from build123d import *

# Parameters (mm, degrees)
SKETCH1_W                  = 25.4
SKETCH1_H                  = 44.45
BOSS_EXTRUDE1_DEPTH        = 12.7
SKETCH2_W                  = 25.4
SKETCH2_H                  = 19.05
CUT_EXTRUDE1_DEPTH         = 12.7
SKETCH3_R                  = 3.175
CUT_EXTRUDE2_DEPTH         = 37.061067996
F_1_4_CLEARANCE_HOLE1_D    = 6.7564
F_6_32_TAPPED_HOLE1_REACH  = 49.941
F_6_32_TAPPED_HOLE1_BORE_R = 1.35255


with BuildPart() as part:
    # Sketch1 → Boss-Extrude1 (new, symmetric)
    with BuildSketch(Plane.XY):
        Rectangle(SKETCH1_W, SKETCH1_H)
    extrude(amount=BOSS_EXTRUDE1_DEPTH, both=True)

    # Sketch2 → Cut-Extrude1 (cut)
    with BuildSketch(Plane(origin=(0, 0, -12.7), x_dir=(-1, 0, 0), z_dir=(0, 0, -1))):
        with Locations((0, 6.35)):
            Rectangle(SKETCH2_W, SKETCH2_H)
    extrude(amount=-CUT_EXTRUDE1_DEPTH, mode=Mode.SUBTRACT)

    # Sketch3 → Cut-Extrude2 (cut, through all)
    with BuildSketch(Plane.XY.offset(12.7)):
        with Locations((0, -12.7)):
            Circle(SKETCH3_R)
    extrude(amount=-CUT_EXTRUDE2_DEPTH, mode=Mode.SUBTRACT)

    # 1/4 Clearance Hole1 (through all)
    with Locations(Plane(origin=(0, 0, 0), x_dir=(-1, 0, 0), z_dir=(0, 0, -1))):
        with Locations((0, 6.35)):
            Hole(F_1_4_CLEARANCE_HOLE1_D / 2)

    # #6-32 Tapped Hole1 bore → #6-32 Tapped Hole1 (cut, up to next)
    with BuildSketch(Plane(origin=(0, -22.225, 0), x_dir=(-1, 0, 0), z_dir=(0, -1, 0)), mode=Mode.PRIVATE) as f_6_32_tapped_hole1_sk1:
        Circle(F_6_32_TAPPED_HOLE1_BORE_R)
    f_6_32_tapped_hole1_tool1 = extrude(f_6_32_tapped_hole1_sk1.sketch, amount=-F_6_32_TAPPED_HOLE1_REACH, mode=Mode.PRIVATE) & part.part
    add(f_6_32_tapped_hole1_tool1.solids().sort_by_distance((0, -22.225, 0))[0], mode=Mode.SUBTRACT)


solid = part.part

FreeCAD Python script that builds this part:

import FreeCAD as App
import Part
import Sketcher
Q = App.Units.Quantity


def add_polygon(sketch, points):
    """Adds a closed chain of lines whose ends are joined by coincident constraints."""
    first, n = sketch.GeometryCount, len(points)
    for a, b in zip(points, points[1:] + points[:1]):
        sketch.addGeometry(Part.LineSegment(App.Vector(*a, 0), App.Vector(*b, 0)), False)
    for i in range(n):
        sketch.addConstraint(Sketcher.Constraint("Coincident", first + i, 2, first + (i + 1) % n, 1))

doc = App.newDocument("Part")
params = doc.addObject("Spreadsheet::Sheet", "Params")
for row, (alias, value) in enumerate([
    ("sketch1_width", "1 in"),
    ("sketch1_height", "1.75 in"),
    ("pad1_length", "1 in"),
    ("sketch2_width", "1 in"),
    ("sketch2_height", "0.75 in"),
    ("pocket1_length", "0.5 in"),
    ("sketch3_diameter", "0.25 in"),
    ("sketch4_diameter", "0.266 in"),
    ("hole_diameter", "0.266 in"),
], start=1):
    params.set(f"A{row}", alias)
    params.set(f"B{row}", "=" + value)
    params.setAlias(f"B{row}", alias)

body = doc.addObject("PartDesign::Body", "Body")

# Sketch on XY plane
sketch1 = doc.addObject("Sketcher::SketchObject", "Sketch")
body.addObject(sketch1)
sketch1.AttachmentSupport = (doc.XY_Plane, [""])
sketch1.MapMode = "FlatFace"
add_polygon(sketch1, [(-12.7, 22.225), (-12.7, -22.225), (12.7, -22.225), (12.7, 22.225)])  # lines 0-3
sketch1.addConstraint([
    Sketcher.Constraint("Vertical", 0),
    Sketcher.Constraint("Horizontal", 1),
    Sketcher.Constraint("Vertical", 2),
    Sketcher.Constraint("Horizontal", 3),
    Sketcher.Constraint("Symmetric", 0, 2, 2, 2, -1, 1),
    Sketcher.Constraint("DistanceX", 1, 1, 1, 2, Q("1 in")),
    Sketcher.Constraint("DistanceY", 0, 2, 0, 1, Q("1.75 in")),
])
sketch1.setExpression("Constraints[9]", "Params.sketch1_width")
sketch1.setExpression("Constraints[10]", "Params.sketch1_height")
pad1 = doc.addObject("PartDesign::Pad", "Pad")
body.addObject(pad1)
pad1.Profile = sketch1
pad1.setExpression("Length", "Params.pad1_length")
pad1.Midplane = True

# Sketch on XY plane
sketch2 = doc.addObject("Sketcher::SketchObject", "Sketch001")
body.addObject(sketch2)
sketch2.AttachmentSupport = (doc.XY_Plane, [""])
sketch2.MapMode = "FlatFace"
sketch2.AttachmentOffset = App.Placement(App.Vector(0, 0, -0.5 * 25.4), App.Rotation())
add_polygon(sketch2, [(12.7, 15.875), (12.7, -3.175), (-12.7, -3.175), (-12.7, 15.875)])  # lines 0-3
sketch2.addConstraint([
    Sketcher.Constraint("Vertical", 0),
    Sketcher.Constraint("Horizontal", 1),
    Sketcher.Constraint("Vertical", 2),
    Sketcher.Constraint("Horizontal", 3),
    Sketcher.Constraint("DistanceX", 1, 2, 1, 1, Q("1 in")),
    Sketcher.Constraint("DistanceY", 0, 2, 0, 1, Q("0.75 in")),
    Sketcher.Constraint("DistanceX", -1, 1, 0, 2, Q("0.5 in")),
    Sketcher.Constraint("DistanceY", 0, 2, -1, 1, Q("0.125 in")),
])
sketch2.setExpression("Constraints[8]", "Params.sketch2_width")
sketch2.setExpression("Constraints[9]", "Params.sketch2_height")
pocket1 = doc.addObject("PartDesign::Pocket", "Pocket")
body.addObject(pocket1)
pocket1.Profile = sketch2
pocket1.setExpression("Length", "Params.pocket1_length")
pocket1.Reversed = True

# Sketch on XY plane
sketch3 = doc.addObject("Sketcher::SketchObject", "Sketch002")
body.addObject(sketch3)
sketch3.AttachmentSupport = (doc.XY_Plane, [""])
sketch3.MapMode = "FlatFace"
sketch3.AttachmentOffset = App.Placement(App.Vector(0, 0, 0.5 * 25.4), App.Rotation())
sketch3.addGeometry(Part.Circle(App.Vector(0, -12.7, 0), App.Vector(0, 0, 1), 3.175), False)
sketch3.addConstraint([
    Sketcher.Constraint("PointOnObject", 0, 3, -2),
    Sketcher.Constraint("Diameter", 0, Q("0.25 in")),
    Sketcher.Constraint("DistanceY", 0, 3, -1, 1, Q("0.5 in")),
])
sketch3.setExpression("Constraints[1]", "Params.sketch3_diameter")
pocket2 = doc.addObject("PartDesign::Pocket", "Pocket001")
body.addObject(pocket2)
pocket2.Profile = sketch3
pocket2.Type = "ThroughAll"

# Sketch on XY plane
sketch4 = doc.addObject("Sketcher::SketchObject", "Sketch003")
body.addObject(sketch4)
sketch4.AttachmentSupport = (doc.XY_Plane, [""])
sketch4.MapMode = "FlatFace"
sketch4.addGeometry(Part.Circle(App.Vector(0, 6.35, 0), App.Vector(0, 0, 1), 3.3782), False)
sketch4.addConstraint([
    Sketcher.Constraint("PointOnObject", 0, 3, -2),
    Sketcher.Constraint("Diameter", 0, Q("0.266 in")),
    Sketcher.Constraint("DistanceY", -1, 1, 0, 3, Q("0.25 in")),
])
sketch4.setExpression("Constraints[1]", "Params.sketch4_diameter")
doc.recompute()
hole = doc.addObject("PartDesign::Hole", "Hole")
body.addObject(hole)
hole.Profile = sketch4
hole.ThreadType = "None"
hole.setExpression("Diameter", "Params.hole_diameter")
hole.DepthType = "ThroughAll"
hole.Reversed = True

# Sketch on XZ plane
sketch5 = doc.addObject("Sketcher::SketchObject", "Sketch004")
body.addObject(sketch5)
sketch5.AttachmentSupport = (doc.XZ_Plane, [""])
sketch5.MapMode = "FlatFace"
sketch5.AttachmentOffset = App.Placement(App.Vector(0, 0, 0.875 * 25.4), App.Rotation())
sketch5.addGeometry(Part.Circle(App.Vector(0, 0, 0), App.Vector(0, 0, 1), 1.35255), False)
sketch5.addConstraint([
    Sketcher.Constraint("Coincident", 0, 3, -1, 1),
    Sketcher.Constraint("Diameter", 0, Q("0.1065 in")),
])
pocket3 = doc.addObject("PartDesign::Pocket", "Pocket002")
body.addObject(pocket3)
pocket3.Profile = sketch5
pocket3.Type = "UpToFirst"

doc.recompute()
